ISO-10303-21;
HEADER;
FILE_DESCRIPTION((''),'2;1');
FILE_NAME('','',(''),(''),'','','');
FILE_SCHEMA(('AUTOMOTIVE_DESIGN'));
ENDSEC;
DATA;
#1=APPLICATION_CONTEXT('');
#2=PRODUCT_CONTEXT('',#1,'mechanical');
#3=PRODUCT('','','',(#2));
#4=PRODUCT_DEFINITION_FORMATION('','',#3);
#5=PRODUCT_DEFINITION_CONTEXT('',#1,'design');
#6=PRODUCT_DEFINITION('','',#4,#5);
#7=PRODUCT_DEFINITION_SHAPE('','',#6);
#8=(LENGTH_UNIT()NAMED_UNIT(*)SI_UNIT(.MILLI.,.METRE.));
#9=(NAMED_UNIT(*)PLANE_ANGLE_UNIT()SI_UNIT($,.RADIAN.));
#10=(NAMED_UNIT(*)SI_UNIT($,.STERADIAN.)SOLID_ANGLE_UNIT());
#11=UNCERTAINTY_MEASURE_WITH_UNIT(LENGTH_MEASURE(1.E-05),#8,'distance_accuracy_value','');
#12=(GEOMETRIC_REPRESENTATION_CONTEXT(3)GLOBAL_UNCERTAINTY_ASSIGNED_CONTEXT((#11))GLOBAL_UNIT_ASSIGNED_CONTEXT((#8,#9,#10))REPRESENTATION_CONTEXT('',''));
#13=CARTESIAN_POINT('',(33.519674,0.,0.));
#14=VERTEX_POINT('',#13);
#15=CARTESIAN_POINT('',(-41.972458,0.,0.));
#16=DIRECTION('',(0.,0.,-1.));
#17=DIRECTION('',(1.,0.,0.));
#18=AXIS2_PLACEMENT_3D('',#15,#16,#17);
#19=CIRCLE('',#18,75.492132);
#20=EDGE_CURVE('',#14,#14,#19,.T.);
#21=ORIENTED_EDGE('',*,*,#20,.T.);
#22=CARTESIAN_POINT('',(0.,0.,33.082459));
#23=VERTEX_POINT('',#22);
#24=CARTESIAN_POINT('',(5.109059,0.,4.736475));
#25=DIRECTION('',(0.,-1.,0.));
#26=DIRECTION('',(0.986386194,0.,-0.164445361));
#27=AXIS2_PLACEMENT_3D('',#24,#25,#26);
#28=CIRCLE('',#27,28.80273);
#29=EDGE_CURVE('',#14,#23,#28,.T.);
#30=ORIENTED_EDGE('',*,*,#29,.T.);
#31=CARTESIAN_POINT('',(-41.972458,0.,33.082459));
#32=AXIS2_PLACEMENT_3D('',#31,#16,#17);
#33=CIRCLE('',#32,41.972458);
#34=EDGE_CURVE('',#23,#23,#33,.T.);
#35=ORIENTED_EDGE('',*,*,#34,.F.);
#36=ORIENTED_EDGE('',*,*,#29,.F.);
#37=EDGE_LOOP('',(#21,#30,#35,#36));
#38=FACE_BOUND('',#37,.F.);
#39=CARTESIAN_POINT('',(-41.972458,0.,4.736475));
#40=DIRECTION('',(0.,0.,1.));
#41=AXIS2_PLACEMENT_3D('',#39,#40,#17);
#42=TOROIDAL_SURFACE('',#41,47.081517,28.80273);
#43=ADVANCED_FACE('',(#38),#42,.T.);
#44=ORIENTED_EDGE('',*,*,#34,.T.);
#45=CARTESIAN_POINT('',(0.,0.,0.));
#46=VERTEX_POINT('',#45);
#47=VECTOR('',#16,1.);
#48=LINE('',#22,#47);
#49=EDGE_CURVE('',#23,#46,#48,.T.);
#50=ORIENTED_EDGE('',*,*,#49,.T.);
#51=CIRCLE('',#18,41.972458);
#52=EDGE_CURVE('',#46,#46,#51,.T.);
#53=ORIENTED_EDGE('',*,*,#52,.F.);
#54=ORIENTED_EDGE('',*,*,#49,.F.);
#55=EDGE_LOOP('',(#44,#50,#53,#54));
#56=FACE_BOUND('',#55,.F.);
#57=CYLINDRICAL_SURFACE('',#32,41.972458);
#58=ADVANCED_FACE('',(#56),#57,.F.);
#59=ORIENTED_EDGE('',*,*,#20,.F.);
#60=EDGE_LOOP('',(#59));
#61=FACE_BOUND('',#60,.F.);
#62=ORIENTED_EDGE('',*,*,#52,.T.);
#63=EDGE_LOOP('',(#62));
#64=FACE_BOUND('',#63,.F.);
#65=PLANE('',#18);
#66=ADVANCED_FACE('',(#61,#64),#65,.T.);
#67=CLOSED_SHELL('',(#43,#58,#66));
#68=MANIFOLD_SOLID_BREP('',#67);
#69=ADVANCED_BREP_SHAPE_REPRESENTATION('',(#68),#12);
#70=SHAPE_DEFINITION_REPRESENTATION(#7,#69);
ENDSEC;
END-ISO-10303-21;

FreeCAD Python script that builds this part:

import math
import FreeCAD as App
import Part
import Sketcher

V = App.Vector

doc = App.newDocument("Part")
body = doc.addObject("PartDesign::Body", "Body")

# Sketch on XZ plane
sketch1 = body.newObject("Sketcher::SketchObject", "Sketch")
sketch1.AttachmentSupport = (doc.getObject("XZ_Plane"), [""])
sketch1.MapMode = "FlatFace"
sketch1.addGeometry([
    Part.ArcOfCircle(Part.Circle(V(5, 5, 0), V(0, 0, 1), 29), math.radians(-9), math.radians(100)),
    Part.LineSegment(V(0, 33, 0), V(0, 0, 0)),
    Part.LineSegment(V(0, 0, 0), V(34, 0, 0)),
], False)
sketch1.addGeometry(Part.LineSegment(V(-42, 33, 0), V(-42, 0, 0)), True)  # axis
sketch1.addConstraint([
    Sketcher.Constraint("Coincident", 0, 2, 1, 1),
    Sketcher.Constraint("Coincident", 1, 2, 2, 1),
    Sketcher.Constraint("Coincident", 2, 2, 0, 1),
    Sketcher.Constraint("Vertical", 1),
    Sketcher.Constraint("Horizontal", 2),
    Sketcher.Constraint("Vertical", 3),
    Sketcher.Constraint("Coincident", 1, 2, -1, 1),
    Sketcher.Constraint("PointOnObject", 3, 2, -1),
    Sketcher.Constraint("Horizontal", 0, 2, 3, 1),
    Sketcher.Constraint("Radius", 0, 28.80273),
    Sketcher.Constraint("DistanceY", 1, 2, 1, 1, 33.082459),
    Sketcher.Constraint("DistanceX", 2, 1, 2, 2, 33.519674),
    Sketcher.Constraint("DistanceX", 3, 1, -1, 1, 41.972458),
])
revolution = body.newObject("PartDesign::Revolution", "Revolution")
revolution.Profile = sketch1
revolution.ReferenceAxis = (sketch1, ["Axis0"])
revolution.Angle = 360

doc.recompute()
